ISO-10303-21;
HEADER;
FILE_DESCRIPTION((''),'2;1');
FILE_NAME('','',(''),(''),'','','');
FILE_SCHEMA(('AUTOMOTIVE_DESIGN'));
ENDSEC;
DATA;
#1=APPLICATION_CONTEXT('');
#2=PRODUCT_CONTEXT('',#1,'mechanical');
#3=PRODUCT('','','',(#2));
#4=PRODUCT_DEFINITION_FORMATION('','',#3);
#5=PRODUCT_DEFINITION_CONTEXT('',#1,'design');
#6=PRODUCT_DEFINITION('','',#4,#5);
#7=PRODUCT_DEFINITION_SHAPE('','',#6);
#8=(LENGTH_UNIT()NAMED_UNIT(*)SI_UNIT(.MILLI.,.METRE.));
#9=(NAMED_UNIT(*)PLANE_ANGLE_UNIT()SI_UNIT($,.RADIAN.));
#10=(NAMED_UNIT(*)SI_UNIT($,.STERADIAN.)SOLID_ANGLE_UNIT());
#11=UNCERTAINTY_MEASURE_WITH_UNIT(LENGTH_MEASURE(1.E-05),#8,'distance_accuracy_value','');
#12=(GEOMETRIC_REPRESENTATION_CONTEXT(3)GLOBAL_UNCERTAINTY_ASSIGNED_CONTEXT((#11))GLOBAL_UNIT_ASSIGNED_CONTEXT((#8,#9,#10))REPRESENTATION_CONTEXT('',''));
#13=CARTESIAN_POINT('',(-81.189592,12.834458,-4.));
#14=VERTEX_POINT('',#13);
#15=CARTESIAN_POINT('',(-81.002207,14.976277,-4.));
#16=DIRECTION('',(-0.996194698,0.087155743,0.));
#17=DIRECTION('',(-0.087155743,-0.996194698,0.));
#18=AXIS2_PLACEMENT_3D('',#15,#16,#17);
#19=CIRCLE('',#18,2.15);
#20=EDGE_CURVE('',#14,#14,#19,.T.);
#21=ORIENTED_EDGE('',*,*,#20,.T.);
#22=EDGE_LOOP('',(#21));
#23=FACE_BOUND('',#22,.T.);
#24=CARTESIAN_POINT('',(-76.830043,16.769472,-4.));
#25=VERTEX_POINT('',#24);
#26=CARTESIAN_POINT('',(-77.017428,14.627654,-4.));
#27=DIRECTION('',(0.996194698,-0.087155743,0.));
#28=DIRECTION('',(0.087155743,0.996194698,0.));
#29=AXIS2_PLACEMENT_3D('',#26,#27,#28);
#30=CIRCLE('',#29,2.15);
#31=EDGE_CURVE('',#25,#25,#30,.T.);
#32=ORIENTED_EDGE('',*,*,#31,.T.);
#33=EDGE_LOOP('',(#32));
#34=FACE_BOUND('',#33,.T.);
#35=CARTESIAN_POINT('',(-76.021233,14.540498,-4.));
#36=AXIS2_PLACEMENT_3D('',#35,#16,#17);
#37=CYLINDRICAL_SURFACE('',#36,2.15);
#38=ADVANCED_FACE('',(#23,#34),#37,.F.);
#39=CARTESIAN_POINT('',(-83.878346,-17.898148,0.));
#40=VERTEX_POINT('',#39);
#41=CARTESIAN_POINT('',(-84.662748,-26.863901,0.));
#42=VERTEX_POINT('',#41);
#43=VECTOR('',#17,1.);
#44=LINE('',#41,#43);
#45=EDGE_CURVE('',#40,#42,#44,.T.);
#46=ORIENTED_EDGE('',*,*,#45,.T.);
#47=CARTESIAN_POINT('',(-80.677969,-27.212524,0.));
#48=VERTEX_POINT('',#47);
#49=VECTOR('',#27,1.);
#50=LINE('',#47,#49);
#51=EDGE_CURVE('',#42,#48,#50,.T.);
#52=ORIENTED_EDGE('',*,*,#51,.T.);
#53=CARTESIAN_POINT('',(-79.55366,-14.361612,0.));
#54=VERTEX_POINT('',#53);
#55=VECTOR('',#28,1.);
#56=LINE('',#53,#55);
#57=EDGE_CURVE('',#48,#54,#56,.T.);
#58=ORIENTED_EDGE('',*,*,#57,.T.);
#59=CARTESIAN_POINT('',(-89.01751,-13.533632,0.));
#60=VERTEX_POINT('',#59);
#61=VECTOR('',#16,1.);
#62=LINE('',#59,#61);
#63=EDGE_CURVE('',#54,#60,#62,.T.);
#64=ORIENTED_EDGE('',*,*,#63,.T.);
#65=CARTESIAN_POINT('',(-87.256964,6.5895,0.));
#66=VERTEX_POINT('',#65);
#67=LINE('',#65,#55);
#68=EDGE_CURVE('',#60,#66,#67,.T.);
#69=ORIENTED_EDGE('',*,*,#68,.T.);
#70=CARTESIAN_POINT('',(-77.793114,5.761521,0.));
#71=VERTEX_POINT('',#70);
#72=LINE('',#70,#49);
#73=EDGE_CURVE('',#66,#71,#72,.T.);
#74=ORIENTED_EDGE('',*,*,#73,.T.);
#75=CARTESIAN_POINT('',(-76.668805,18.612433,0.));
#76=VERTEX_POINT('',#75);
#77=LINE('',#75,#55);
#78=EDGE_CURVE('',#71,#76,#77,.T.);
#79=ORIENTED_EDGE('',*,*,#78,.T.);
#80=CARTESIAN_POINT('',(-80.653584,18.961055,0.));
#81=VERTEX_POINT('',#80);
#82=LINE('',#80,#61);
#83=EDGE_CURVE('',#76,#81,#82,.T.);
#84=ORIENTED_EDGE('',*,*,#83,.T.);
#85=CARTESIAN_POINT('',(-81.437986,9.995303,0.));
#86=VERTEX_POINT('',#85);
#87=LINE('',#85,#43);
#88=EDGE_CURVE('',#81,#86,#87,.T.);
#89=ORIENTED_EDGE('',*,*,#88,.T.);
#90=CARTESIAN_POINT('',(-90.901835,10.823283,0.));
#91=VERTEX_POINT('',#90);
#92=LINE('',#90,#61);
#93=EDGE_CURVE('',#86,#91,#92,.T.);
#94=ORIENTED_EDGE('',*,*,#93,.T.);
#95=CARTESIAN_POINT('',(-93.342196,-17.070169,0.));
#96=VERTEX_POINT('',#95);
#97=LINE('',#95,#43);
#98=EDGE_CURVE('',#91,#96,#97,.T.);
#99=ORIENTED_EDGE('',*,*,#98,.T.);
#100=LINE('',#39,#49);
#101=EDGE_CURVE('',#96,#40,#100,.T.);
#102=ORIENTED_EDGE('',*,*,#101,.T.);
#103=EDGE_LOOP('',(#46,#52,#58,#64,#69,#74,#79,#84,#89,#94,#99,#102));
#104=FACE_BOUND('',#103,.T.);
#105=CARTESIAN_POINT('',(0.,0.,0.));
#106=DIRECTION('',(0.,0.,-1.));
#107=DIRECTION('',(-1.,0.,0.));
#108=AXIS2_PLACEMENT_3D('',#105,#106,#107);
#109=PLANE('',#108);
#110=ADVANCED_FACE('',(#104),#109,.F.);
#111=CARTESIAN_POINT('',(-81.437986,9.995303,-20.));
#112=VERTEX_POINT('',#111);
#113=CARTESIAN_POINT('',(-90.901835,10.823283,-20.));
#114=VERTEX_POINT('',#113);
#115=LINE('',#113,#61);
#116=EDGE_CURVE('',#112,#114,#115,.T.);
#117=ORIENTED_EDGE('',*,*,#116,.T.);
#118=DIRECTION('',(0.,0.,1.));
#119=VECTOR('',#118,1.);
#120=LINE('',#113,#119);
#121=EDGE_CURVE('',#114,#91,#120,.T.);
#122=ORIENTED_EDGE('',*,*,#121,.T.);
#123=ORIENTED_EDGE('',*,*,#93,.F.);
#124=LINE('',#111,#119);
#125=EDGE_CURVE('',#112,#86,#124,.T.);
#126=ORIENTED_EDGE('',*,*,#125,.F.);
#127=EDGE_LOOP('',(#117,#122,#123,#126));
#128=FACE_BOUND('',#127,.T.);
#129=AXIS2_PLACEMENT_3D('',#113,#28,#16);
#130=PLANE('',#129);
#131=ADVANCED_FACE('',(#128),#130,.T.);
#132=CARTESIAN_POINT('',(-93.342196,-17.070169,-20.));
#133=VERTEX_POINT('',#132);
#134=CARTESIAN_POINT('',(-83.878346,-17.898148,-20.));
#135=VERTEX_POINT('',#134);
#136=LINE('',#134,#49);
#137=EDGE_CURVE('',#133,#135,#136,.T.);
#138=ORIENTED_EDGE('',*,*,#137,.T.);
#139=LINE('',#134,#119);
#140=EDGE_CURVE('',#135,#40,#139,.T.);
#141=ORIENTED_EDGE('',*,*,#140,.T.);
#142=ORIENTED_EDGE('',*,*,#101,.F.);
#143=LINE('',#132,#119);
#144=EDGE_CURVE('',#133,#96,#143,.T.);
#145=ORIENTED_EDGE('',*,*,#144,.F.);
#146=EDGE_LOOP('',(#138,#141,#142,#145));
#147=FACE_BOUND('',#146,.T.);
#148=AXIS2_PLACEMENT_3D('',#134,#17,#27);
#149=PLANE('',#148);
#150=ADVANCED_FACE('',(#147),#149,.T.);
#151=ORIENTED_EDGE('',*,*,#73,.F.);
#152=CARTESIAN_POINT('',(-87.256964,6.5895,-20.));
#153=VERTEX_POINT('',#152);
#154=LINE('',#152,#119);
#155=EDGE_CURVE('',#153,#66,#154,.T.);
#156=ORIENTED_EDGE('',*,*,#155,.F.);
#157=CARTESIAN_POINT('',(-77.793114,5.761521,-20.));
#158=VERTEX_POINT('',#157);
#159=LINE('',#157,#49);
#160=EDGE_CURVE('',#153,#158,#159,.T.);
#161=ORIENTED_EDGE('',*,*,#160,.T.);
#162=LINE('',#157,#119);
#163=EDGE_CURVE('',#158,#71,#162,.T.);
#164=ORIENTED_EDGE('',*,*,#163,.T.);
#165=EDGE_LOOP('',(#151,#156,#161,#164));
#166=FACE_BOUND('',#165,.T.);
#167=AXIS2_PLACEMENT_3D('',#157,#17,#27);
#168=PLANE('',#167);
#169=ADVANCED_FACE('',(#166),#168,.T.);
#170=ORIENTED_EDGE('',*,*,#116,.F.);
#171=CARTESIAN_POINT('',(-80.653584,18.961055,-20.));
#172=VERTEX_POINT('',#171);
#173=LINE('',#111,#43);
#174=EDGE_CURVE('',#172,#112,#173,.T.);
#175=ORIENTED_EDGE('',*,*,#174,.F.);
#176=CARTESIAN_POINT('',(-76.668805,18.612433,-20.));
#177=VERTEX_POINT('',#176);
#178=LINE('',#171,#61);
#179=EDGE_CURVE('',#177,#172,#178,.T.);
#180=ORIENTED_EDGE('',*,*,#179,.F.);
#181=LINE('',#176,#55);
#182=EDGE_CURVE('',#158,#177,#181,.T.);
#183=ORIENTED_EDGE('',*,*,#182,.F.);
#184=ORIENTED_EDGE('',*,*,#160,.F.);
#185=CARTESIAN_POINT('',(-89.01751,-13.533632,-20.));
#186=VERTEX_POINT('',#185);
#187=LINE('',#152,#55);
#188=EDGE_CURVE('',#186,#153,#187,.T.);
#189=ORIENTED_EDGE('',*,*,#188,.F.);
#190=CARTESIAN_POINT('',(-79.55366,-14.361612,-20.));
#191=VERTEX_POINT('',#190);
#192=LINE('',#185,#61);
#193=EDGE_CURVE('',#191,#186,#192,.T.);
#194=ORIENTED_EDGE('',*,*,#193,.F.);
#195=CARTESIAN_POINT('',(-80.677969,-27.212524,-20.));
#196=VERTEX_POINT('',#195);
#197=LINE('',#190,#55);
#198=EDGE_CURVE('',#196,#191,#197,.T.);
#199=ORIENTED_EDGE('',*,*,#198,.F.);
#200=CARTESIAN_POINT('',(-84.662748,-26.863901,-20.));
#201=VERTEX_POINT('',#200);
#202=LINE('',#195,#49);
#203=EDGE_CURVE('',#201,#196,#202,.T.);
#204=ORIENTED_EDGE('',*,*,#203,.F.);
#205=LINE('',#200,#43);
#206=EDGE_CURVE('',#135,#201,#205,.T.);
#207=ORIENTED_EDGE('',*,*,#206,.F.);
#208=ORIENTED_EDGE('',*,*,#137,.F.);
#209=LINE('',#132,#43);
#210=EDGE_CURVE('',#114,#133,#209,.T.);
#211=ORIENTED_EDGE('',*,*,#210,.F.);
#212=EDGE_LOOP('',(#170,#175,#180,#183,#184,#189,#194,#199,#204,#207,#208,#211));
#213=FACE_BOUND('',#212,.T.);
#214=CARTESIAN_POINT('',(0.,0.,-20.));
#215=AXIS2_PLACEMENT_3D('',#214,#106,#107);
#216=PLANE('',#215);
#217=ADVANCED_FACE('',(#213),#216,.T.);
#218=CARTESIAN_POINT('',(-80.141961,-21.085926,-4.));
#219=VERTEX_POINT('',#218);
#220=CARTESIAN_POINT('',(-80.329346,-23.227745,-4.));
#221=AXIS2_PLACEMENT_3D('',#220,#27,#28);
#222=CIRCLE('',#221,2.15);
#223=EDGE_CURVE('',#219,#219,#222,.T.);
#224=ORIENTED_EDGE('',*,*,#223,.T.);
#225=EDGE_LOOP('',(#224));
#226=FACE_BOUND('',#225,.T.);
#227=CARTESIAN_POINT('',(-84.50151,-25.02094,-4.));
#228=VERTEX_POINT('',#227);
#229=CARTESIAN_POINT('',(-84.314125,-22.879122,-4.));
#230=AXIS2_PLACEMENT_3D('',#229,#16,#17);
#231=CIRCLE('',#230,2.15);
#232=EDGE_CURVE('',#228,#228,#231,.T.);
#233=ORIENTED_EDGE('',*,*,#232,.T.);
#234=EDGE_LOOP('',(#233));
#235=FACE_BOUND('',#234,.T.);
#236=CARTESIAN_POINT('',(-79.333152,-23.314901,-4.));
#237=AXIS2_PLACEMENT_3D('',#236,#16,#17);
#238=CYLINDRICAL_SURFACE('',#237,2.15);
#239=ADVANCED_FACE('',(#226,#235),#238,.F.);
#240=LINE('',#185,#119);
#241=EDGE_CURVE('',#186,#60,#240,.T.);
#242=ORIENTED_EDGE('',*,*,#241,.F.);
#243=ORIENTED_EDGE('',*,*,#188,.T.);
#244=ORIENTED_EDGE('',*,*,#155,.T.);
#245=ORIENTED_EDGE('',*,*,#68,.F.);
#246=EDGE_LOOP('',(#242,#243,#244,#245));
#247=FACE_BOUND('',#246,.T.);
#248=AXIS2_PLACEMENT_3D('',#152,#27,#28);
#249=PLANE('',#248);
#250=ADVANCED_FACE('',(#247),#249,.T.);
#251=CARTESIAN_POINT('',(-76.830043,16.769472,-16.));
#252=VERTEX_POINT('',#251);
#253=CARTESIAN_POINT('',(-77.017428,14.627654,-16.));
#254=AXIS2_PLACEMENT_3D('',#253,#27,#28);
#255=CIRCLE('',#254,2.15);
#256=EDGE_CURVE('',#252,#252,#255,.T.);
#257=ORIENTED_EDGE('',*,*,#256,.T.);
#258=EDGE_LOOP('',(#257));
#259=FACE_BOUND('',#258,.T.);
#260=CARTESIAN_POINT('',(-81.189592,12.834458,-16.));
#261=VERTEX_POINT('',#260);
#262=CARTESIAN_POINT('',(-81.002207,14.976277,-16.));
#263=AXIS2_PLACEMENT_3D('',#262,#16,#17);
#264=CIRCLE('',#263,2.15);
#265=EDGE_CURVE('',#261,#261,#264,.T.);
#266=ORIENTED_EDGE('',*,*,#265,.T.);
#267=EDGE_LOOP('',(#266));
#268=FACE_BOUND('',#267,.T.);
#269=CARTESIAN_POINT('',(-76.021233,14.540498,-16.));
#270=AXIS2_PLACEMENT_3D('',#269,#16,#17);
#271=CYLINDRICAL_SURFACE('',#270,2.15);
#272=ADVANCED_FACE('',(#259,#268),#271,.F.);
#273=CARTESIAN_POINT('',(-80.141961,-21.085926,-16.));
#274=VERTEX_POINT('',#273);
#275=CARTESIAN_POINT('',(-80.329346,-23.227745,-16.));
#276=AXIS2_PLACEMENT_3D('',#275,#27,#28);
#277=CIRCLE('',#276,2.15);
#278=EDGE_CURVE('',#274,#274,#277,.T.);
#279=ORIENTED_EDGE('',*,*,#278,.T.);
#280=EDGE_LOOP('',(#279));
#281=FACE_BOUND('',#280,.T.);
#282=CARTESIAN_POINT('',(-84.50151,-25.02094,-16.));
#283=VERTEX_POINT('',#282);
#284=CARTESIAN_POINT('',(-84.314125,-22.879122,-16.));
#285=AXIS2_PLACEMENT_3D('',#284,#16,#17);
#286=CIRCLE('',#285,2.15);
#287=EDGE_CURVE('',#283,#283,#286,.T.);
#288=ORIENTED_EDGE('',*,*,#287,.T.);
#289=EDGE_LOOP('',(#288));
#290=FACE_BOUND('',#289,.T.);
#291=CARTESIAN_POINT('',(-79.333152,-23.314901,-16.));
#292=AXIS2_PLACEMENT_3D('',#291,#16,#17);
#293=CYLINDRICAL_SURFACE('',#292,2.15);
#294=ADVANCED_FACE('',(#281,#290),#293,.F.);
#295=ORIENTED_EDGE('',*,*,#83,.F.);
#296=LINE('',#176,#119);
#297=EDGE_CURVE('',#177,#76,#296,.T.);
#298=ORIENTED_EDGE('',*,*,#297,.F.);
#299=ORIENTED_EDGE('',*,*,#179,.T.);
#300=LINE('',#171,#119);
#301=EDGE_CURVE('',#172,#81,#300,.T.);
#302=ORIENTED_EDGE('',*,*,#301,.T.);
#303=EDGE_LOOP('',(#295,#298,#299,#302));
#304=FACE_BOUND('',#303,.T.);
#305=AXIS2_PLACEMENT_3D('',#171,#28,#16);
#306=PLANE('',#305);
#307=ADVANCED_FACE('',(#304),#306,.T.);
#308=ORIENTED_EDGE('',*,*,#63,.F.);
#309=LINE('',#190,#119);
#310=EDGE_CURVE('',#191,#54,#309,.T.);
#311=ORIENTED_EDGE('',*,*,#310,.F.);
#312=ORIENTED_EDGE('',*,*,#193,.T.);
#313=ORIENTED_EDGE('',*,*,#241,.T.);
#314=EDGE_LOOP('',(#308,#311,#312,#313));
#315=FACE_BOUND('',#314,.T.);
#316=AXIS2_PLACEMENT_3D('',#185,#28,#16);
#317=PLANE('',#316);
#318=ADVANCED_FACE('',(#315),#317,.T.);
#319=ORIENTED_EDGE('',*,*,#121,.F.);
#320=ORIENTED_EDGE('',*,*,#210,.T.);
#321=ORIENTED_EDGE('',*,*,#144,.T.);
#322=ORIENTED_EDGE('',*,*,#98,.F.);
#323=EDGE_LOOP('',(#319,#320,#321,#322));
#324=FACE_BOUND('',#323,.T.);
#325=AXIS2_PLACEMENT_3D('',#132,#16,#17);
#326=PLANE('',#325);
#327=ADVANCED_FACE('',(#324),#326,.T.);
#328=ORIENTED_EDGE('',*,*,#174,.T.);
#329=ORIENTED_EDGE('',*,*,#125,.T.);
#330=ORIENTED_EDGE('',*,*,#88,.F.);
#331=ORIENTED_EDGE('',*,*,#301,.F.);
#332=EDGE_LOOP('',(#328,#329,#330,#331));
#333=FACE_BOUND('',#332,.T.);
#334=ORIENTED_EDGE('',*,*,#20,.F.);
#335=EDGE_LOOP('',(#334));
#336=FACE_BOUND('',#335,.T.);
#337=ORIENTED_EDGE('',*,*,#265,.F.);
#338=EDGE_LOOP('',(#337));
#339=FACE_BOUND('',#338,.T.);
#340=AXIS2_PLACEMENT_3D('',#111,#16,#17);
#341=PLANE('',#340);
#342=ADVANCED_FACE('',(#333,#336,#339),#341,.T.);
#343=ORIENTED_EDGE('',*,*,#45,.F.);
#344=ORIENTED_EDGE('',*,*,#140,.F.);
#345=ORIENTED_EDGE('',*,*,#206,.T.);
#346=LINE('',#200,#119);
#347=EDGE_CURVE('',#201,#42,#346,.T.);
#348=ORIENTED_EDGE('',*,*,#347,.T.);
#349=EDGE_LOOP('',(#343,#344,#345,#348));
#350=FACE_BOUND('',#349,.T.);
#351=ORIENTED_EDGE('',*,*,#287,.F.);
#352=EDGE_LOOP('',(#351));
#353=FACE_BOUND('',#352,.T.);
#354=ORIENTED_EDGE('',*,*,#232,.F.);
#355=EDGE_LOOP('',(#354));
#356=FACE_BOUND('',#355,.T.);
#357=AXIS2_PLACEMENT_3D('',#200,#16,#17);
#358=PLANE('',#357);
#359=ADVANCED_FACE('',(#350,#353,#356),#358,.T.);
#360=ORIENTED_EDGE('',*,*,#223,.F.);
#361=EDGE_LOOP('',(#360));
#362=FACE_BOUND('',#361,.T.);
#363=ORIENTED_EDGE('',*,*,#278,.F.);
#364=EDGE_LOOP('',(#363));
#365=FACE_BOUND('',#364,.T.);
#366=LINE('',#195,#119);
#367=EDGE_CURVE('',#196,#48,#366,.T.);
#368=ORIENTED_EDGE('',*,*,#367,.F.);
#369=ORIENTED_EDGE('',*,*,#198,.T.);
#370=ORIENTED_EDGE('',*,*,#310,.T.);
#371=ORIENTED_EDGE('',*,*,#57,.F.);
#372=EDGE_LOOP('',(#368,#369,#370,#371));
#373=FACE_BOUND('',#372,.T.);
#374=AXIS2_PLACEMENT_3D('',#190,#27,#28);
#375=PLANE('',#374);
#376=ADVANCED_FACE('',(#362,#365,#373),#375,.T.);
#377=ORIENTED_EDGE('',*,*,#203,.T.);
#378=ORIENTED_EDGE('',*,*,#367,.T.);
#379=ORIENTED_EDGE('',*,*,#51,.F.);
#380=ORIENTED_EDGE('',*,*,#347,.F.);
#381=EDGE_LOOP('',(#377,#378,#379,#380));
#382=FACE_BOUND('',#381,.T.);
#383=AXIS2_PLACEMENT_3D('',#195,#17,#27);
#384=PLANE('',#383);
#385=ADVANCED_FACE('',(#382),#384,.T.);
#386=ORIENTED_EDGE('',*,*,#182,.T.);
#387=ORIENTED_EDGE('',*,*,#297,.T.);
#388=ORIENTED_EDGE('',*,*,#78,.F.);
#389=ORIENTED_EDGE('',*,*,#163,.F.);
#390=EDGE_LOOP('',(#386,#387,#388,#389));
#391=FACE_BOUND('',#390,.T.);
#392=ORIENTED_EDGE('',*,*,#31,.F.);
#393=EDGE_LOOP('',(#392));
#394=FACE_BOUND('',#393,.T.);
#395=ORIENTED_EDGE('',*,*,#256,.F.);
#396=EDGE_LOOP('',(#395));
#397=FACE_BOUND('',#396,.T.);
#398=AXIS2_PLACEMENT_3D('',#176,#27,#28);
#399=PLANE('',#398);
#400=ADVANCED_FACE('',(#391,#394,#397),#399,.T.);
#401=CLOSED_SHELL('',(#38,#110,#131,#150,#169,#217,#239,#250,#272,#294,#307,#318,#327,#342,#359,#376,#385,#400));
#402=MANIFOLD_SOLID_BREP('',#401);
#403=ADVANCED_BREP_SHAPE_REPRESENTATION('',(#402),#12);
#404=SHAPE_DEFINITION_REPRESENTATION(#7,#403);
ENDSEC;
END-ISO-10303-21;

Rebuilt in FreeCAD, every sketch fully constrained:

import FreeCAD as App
import Part
import Sketcher

V = App.Vector
Q = App.Units.Quantity


def add_polygon(sketch, points):
    """Adds a closed chain of lines whose ends are joined by coincident constraints."""
    first, n = sketch.GeometryCount, len(points)
    for a, b in zip(points, points[1:] + points[:1]):
        sketch.addGeometry(Part.LineSegment(App.Vector(*a, 0), App.Vector(*b, 0)), False)
    for i in range(n):
        sketch.addConstraint(Sketcher.Constraint("Coincident", first + i, 2, first + (i + 1) % n, 1))

doc = App.newDocument("Part")
body = doc.addObject("PartDesign::Body", "Body")

sketch1 = doc.addObject("Sketcher::SketchObject", "Sketch")
body.addObject(sketch1)
sketch1.AttachmentSupport = (doc.XY_Plane, [""])
sketch1.MapMode = "FlatFace"
add_polygon(sketch1, [(-76.7, 18.6), (-80.7, 19), (-81.4, 10), (-90.9, 10.8), (-93.3, -17.1), (-83.9, -17.9), (-84.7, -26.9), (-80.7, -27.2), (-79.6, -14.4), (-89, -13.5), (-87.3, 6.6), (-77.8, 5.8)])
sketch1.addConstraint(Sketcher.Constraint("Perpendicular", 0, 1))
sketch1.addConstraint(Sketcher.Constraint("Perpendicular", 1, 2))
sketch1.addConstraint(Sketcher.Constraint("Perpendicular", 2, 3))
sketch1.addConstraint(Sketcher.Constraint("Perpendicular", 3, 4))
sketch1.addConstraint(Sketcher.Constraint("Perpendicular", 4, 5))
sketch1.addConstraint(Sketcher.Constraint("Perpendicular", 5, 6))
sketch1.addConstraint(Sketcher.Constraint("Perpendicular", 6, 7))
sketch1.addConstraint(Sketcher.Constraint("Perpendicular", 7, 8))
sketch1.addConstraint(Sketcher.Constraint("Perpendicular", 8, 9))
sketch1.addConstraint(Sketcher.Constraint("Perpendicular", 9, 10))
sketch1.addConstraint(Sketcher.Constraint("Perpendicular", 10, 11))
sketch1.addConstraint(Sketcher.Constraint("Equal", 2, 4))
sketch1.addConstraint(Sketcher.Constraint("Equal", 1, 5))
sketch1.addConstraint(Sketcher.Constraint("Equal", 0, 6))
sketch1.addConstraint(Sketcher.Constraint("Equal", 4, 8))
sketch1.addConstraint(Sketcher.Constraint("Equal", 7, 11))
sketch1.addConstraint(Sketcher.Constraint("Angle", 0, Q("175 deg")))
sketch1.addConstraint(Sketcher.Constraint("Distance", 0, Q("4 mm")))
sketch1.addConstraint(Sketcher.Constraint("Distance", 1, Q("9 mm")))
sketch1.addConstraint(Sketcher.Constraint("Distance", 3, Q("28 mm")))
sketch1.addConstraint(Sketcher.Constraint("Distance", 2, Q("9.5 mm")))
sketch1.addConstraint(Sketcher.Constraint("Distance", 7, Q("12.9 mm")))
sketch1.addConstraint(Sketcher.Constraint("DistanceY", 5, 2, -1, 1, Q("26.863901 mm")))
sketch1.addConstraint(Sketcher.Constraint("DistanceX", 5, 2, -1, 1, Q("84.662748 mm")))
pad1 = doc.addObject("PartDesign::Pad", "Pad")
body.addObject(pad1)
pad1.Profile = sketch1
pad1.Length = 20
pad1.Reversed = True

sketch2 = doc.addObject("Sketcher::SketchObject", "Sketch001")
body.addObject(sketch2)
sketch2.Placement = App.Placement(V(-81.687206, 7.146704, 0), App.Rotation(V(0, 0, 1), V(0.087155743, 0.996194698, 0), V(-0.996194698, 0.087155743, 0), "ZXY"))
sketch2.addGeometry(Part.Circle(V(-4, -30.1, 0), V(0, 0, 1), 2.1), False)
sketch2.addGeometry(Part.Circle(V(-16, -30.1, 0), V(0, 0, 1), 2.1), False)
sketch2.addGeometry(Part.Circle(V(-4, 7.9, 0), V(0, 0, 1), 2.1), False)
sketch2.addGeometry(Part.Circle(V(-16, 7.9, 0), V(0, 0, 1), 2.1), False)
sketch2.addConstraint(Sketcher.Constraint("Equal", 0, 1))
sketch2.addConstraint(Sketcher.Constraint("Equal", 1, 2))
sketch2.addConstraint(Sketcher.Constraint("Equal", 2, 3))
sketch2.addConstraint(Sketcher.Constraint("Horizontal", 0, 3, 1, 3))
sketch2.addConstraint(Sketcher.Constraint("Horizontal", 2, 3, 3, 3))
sketch2.addConstraint(Sketcher.Constraint("Vertical", 0, 3, 2, 3))
sketch2.addConstraint(Sketcher.Constraint("Vertical", 1, 3, 3, 3))
sketch2.addConstraint(Sketcher.Constraint("Diameter", 0, Q("4.3 mm")))
sketch2.addConstraint(Sketcher.Constraint("DistanceX", 0, 3, -1, 1, Q("4 mm")))
sketch2.addConstraint(Sketcher.Constraint("DistanceX", 1, 3, -1, 1, Q("16 mm")))
sketch2.addConstraint(Sketcher.Constraint("DistanceY", 0, 3, 2, 3, Q("38 mm")))
sketch2.addConstraint(Sketcher.Constraint("DistanceY", 0, 3, -1, 1, Q("30.14052 mm")))
pocket1 = doc.addObject("PartDesign::Pocket", "Pocket")
body.addObject(pocket1)
pocket1.Profile = sketch2
pocket1.Length = 5

doc.recompute()
